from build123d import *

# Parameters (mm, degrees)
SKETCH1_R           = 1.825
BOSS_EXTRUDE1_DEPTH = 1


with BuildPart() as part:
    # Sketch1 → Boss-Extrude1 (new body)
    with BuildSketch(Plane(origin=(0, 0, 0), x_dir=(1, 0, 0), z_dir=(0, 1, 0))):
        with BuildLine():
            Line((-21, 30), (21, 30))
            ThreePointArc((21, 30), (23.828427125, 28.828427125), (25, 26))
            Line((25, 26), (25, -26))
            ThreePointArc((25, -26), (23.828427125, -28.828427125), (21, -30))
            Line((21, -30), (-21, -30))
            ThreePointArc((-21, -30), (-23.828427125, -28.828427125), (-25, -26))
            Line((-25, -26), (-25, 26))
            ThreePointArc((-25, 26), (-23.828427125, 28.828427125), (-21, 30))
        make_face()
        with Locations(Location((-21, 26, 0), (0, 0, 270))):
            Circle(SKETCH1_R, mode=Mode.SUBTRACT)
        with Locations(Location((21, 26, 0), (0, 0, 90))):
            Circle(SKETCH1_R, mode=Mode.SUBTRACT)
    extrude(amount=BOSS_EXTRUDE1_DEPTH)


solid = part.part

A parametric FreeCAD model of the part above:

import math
import FreeCAD as App
import Part
import Sketcher

V = App.Vector
Q = App.Units.Quantity

doc = App.newDocument("Part")
body = doc.addObject("PartDesign::Body", "Body")

sketch1 = body.newObject("Sketcher::SketchObject", "Sketch")
sketch1.AttachmentSupport = (doc.getObject("XZ_Plane"), [""])
sketch1.MapMode = "FlatFace"
sketch1.addGeometry(Part.LineSegment(V(21, -30, 0), V(-21, -30, 0)), False)
sketch1.addGeometry(Part.ArcOfCircle(Part.Circle(V(-21, -26, 0), V(0, 0, 1), 4), math.radians(180), math.radians(270)), False)
sketch1.addGeometry(Part.LineSegment(V(-25, -26, 0), V(-25, 26, 0)), False)
sketch1.addGeometry(Part.ArcOfCircle(Part.Circle(V(-21, 26, 0), V(0, 0, 1), 4), math.radians(90), math.radians(180)), False)
sketch1.addGeometry(Part.LineSegment(V(-21, 30, 0), V(21, 30, 0)), False)
sketch1.addGeometry(Part.ArcOfCircle(Part.Circle(V(21, 26, 0), V(0, 0, 1), 4), math.radians(0), math.radians(90)), False)
sketch1.addGeometry(Part.LineSegment(V(25, 26, 0), V(25, -26, 0)), False)
sketch1.addGeometry(Part.ArcOfCircle(Part.Circle(V(21, -26, 0), V(0, 0, 1), 4), math.radians(-90), math.radians(0)), False)
sketch1.addGeometry(Part.Circle(V(21, -26, 0), V(0, 0, 1), 1.8), False)
sketch1.addGeometry(Part.Circle(V(-21, -26, 0), V(0, 0, 1), 1.8), False)
sketch1.addConstraint(Sketcher.Constraint("Tangent", 0, 2, 1, 2))
sketch1.addConstraint(Sketcher.Constraint("Tangent", 1, 1, 2, 1))
sketch1.addConstraint(Sketcher.Constraint("Tangent", 2, 2, 3, 2))
sketch1.addConstraint(Sketcher.Constraint("Tangent", 3, 1, 4, 1))
sketch1.addConstraint(Sketcher.Constraint("Tangent", 4, 2, 5, 2))
sketch1.addConstraint(Sketcher.Constraint("Tangent", 5, 1, 6, 1))
sketch1.addConstraint(Sketcher.Constraint("Tangent", 6, 2, 7, 2))
sketch1.addConstraint(Sketcher.Constraint("Tangent", 7, 1, 0, 1))
sketch1.addConstraint(Sketcher.Constraint("Horizontal", 0))
sketch1.addConstraint(Sketcher.Constraint("Vertical", 2))
sketch1.addConstraint(Sketcher.Constraint("Horizontal", 4))
sketch1.addConstraint(Sketcher.Constraint("Vertical", 6))
sketch1.addConstraint(Sketcher.Constraint("Coincident", 8, 3, 7, 3))
sketch1.addConstraint(Sketcher.Constraint("Coincident", 9, 3, 1, 3))
sketch1.addConstraint(Sketcher.Constraint("Equal", 1, 3))
sketch1.addConstraint(Sketcher.Constraint("Equal", 3, 5))
sketch1.addConstraint(Sketcher.Constraint("Equal", 5, 7))
sketch1.addConstraint(Sketcher.Constraint("Equal", 8, 9))
sketch1.addConstraint(Sketcher.Constraint("Symmetric", 1, 3, 5, 3, -1, 1))
sketch1.addConstraint(Sketcher.Constraint("Radius", 1, Q("4 mm")))
sketch1.addConstraint(Sketcher.Constraint("Diameter", 8, Q("3.65 mm")))
sketch1.addConstraint(Sketcher.Constraint("DistanceX", 0, 2, 0, 1, Q("42 mm")))
sketch1.addConstraint(Sketcher.Constraint("DistanceY", 2, 1, 2, 2, Q("52 mm")))
pad1 = body.newObject("PartDesign::Pad", "Pad")
pad1.Profile = sketch1
pad1.Length = 1
pad1.Reversed = True

doc.recompute()
